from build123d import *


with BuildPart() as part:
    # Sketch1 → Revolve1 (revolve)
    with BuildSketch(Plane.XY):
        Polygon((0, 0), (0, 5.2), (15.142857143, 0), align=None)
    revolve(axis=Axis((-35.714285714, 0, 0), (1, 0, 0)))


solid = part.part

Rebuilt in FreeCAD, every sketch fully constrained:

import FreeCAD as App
import Part
import Sketcher
Q = App.Units.Quantity


def add_polygon(sketch, points):
    """Adds a closed chain of lines whose ends are joined by coincident constraints."""
    first, n = sketch.GeometryCount, len(points)
    for a, b in zip(points, points[1:] + points[:1]):
        sketch.addGeometry(Part.LineSegment(App.Vector(*a, 0), App.Vector(*b, 0)), False)
    for i in range(n):
        sketch.addConstraint(Sketcher.Constraint("Coincident", first + i, 2, first + (i + 1) % n, 1))

doc = App.newDocument("Part")
params = doc.addObject("Spreadsheet::Sheet", "Params")
for row, (alias, value) in enumerate([
    ("sketch1_height", "5.2 mm"),
    ("revolution_angle", "360 deg"),
], start=1):
    params.set(f"A{row}", alias)
    params.set(f"B{row}", "=" + value)
    params.setAlias(f"B{row}", alias)

body = doc.addObject("PartDesign::Body", "Body")

# Sketch on XY plane
sketch1 = doc.addObject("Sketcher::SketchObject", "Sketch")
body.addObject(sketch1)
sketch1.AttachmentSupport = (doc.XY_Plane, [""])
sketch1.MapMode = "FlatFace"
add_polygon(sketch1, [(0, 5), (0, 0), (15, 0)])  # lines 0-2
sketch1.addConstraint(Sketcher.Constraint("Vertical", 0))
sketch1.addConstraint(Sketcher.Constraint("Horizontal", 1))
sketch1.addConstraint(Sketcher.Constraint("Coincident", 0, 2, -1, 1))
sketch1.addConstraint(Sketcher.Constraint("DistanceY", 0, 2, 0, 1, Q("5.2 mm")))
sketch1.addConstraint(Sketcher.Constraint("DistanceX", 1, 1, 1, 2, Q("15.142857 mm")))
sketch1.setExpression("Constraints[6]", "Params.sketch1_height")
revolution = doc.addObject("PartDesign::Revolution", "Revolution")
body.addObject(revolution)
revolution.Profile = sketch1
revolution.ReferenceAxis = (sketch1, ["H_Axis"])
revolution.setExpression("Angle", "Params.revolution_angle")

doc.recompute()
